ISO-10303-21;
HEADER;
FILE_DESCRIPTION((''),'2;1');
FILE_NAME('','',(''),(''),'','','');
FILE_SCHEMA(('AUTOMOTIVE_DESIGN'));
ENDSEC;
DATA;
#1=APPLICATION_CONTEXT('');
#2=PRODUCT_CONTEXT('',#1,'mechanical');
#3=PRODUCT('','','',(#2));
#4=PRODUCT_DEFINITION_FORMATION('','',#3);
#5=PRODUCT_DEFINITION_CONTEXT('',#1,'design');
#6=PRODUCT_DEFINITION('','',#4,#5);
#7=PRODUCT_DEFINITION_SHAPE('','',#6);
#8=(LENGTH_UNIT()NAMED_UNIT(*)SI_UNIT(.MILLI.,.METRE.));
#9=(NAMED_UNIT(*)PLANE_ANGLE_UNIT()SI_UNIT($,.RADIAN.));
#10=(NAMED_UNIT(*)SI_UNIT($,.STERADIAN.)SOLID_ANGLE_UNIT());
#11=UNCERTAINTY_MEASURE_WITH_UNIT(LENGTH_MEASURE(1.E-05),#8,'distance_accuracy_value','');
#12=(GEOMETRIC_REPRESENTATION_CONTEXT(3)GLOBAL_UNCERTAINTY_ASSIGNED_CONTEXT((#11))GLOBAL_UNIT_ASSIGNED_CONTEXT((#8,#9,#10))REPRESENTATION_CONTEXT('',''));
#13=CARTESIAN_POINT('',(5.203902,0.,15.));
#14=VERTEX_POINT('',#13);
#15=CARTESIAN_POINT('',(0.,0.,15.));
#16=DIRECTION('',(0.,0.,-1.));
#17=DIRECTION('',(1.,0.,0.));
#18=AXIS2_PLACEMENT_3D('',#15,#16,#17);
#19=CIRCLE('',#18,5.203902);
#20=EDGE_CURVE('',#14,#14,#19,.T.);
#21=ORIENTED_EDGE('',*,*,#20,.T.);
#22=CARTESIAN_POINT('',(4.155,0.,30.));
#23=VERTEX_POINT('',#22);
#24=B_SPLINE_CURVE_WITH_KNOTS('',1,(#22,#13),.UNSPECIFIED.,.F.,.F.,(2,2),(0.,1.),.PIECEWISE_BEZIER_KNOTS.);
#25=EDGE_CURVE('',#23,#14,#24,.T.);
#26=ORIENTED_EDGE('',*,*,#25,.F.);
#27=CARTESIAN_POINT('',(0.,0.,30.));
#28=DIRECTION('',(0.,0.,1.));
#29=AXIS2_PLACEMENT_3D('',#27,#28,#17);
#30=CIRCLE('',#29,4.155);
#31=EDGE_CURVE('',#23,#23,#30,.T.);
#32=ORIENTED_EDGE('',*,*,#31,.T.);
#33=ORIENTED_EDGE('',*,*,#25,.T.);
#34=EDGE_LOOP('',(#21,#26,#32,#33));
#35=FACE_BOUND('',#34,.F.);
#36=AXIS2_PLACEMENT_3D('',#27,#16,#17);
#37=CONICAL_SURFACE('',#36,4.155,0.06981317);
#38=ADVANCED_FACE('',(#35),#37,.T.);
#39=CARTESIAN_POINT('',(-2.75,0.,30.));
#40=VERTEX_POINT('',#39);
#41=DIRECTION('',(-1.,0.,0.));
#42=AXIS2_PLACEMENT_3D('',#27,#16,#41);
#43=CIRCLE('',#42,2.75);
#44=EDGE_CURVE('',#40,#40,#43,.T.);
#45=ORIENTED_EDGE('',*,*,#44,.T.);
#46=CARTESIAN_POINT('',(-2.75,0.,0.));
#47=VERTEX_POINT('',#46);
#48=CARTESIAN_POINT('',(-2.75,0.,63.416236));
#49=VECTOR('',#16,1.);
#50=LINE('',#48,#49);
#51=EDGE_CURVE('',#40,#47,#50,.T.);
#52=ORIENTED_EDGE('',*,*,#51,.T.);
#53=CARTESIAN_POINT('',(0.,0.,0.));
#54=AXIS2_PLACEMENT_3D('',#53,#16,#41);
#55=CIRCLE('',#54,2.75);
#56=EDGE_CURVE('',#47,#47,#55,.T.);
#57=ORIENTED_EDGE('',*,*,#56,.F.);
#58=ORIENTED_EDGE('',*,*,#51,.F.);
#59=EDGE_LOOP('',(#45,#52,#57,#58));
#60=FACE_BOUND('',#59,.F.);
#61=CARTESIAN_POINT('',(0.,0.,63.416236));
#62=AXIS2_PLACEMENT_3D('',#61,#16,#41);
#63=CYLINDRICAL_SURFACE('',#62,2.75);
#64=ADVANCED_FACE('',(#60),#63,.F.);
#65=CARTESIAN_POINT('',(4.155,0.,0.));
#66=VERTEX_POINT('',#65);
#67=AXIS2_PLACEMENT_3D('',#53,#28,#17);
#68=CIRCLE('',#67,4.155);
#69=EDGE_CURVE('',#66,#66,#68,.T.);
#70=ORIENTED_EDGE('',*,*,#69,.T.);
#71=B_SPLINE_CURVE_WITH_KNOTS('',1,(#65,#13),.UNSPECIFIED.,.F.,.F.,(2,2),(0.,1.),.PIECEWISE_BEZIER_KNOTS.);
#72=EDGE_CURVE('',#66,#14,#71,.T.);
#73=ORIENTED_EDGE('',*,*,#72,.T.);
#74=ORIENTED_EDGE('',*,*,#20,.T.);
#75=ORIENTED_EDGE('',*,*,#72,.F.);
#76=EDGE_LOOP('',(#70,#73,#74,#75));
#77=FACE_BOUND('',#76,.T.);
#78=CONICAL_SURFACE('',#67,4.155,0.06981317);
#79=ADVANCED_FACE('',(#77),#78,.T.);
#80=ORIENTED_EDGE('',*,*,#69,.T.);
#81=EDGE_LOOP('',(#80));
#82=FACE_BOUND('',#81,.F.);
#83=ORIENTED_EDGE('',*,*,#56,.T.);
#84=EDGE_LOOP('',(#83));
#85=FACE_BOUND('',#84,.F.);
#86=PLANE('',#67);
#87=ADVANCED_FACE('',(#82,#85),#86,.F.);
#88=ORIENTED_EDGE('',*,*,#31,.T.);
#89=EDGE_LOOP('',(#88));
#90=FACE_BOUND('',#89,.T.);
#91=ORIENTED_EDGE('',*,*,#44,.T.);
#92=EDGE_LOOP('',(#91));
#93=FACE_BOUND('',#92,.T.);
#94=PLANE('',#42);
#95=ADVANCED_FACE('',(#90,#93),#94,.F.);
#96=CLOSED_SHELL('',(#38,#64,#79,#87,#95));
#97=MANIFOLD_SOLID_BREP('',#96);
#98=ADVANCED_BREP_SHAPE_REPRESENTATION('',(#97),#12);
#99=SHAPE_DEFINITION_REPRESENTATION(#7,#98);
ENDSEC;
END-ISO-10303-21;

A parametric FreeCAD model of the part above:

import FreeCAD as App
import Part
import Sketcher

V = App.Vector
Q = App.Units.Quantity

doc = App.newDocument("Part")
body = doc.addObject("PartDesign::Body", "Body")

# Sketch on XY plane
sketch1 = doc.addObject("Sketcher::SketchObject", "Sketch")
body.addObject(sketch1)
sketch1.AttachmentSupport = (doc.XY_Plane, [""])
sketch1.MapMode = "FlatFace"
sketch1.addGeometry(Part.Circle(V(0, 0, 0), V(0, 0, 1), 4.2), False)
sketch1.addConstraint([
    Sketcher.Constraint("Coincident", 0, 3, -1, 1),
    Sketcher.Constraint("Diameter", 0, Q("8.31 mm")),
])
pad1 = doc.addObject("PartDesign::Pad", "Pad")
body.addObject(pad1)
pad1.Profile = sketch1
pad1.Length = 15
pad1.TaperAngle = 4
body2 = doc.addObject("PartDesign::Body", "Body001")
doc.recompute()

body2.BaseFeature = body
doc.recompute()

mirroring = doc.addObject("Part::Mirroring", "Mirroring")
mirroring.Source = body
mirroring.Base = V(0, 0, 15)
mirroring.Normal = V(0, 0, 1)
body3 = doc.addObject("PartDesign::Body", "Body002")
body3.BaseFeature = mirroring
boolean = doc.addObject("PartDesign::Boolean", "Boolean")
body2.addObject(boolean)
boolean.Type = "Fuse"
boolean.addObjects([body3])
doc.recompute()

# Sketch on XY plane
sketch2 = doc.addObject("Sketcher::SketchObject", "Sketch001")
body2.addObject(sketch2)
sketch2.AttachmentSupport = (doc.getObject("XY_Plane001"), [""])
sketch2.MapMode = "FlatFace"
sketch2.AttachmentOffset = App.Placement(V(0, 0, 30), App.Rotation())
sketch2.addGeometry(Part.Circle(V(0, 0, 0), V(0, 0, 1), 2.8), False)
sketch2.addConstraint([
    Sketcher.Constraint("Coincident", 0, 3, -1, 1),
    Sketcher.Constraint("Diameter", 0, Q("5.5 mm")),
])
doc.recompute()
hole = doc.addObject("PartDesign::Hole", "Hole")
body2.addObject(hole)
hole.Profile = sketch2
hole.ThreadType = "None"
hole.Diameter = 5.5
hole.DepthType = "ThroughAll"
mirroring.Visibility = False

doc.recompute()
